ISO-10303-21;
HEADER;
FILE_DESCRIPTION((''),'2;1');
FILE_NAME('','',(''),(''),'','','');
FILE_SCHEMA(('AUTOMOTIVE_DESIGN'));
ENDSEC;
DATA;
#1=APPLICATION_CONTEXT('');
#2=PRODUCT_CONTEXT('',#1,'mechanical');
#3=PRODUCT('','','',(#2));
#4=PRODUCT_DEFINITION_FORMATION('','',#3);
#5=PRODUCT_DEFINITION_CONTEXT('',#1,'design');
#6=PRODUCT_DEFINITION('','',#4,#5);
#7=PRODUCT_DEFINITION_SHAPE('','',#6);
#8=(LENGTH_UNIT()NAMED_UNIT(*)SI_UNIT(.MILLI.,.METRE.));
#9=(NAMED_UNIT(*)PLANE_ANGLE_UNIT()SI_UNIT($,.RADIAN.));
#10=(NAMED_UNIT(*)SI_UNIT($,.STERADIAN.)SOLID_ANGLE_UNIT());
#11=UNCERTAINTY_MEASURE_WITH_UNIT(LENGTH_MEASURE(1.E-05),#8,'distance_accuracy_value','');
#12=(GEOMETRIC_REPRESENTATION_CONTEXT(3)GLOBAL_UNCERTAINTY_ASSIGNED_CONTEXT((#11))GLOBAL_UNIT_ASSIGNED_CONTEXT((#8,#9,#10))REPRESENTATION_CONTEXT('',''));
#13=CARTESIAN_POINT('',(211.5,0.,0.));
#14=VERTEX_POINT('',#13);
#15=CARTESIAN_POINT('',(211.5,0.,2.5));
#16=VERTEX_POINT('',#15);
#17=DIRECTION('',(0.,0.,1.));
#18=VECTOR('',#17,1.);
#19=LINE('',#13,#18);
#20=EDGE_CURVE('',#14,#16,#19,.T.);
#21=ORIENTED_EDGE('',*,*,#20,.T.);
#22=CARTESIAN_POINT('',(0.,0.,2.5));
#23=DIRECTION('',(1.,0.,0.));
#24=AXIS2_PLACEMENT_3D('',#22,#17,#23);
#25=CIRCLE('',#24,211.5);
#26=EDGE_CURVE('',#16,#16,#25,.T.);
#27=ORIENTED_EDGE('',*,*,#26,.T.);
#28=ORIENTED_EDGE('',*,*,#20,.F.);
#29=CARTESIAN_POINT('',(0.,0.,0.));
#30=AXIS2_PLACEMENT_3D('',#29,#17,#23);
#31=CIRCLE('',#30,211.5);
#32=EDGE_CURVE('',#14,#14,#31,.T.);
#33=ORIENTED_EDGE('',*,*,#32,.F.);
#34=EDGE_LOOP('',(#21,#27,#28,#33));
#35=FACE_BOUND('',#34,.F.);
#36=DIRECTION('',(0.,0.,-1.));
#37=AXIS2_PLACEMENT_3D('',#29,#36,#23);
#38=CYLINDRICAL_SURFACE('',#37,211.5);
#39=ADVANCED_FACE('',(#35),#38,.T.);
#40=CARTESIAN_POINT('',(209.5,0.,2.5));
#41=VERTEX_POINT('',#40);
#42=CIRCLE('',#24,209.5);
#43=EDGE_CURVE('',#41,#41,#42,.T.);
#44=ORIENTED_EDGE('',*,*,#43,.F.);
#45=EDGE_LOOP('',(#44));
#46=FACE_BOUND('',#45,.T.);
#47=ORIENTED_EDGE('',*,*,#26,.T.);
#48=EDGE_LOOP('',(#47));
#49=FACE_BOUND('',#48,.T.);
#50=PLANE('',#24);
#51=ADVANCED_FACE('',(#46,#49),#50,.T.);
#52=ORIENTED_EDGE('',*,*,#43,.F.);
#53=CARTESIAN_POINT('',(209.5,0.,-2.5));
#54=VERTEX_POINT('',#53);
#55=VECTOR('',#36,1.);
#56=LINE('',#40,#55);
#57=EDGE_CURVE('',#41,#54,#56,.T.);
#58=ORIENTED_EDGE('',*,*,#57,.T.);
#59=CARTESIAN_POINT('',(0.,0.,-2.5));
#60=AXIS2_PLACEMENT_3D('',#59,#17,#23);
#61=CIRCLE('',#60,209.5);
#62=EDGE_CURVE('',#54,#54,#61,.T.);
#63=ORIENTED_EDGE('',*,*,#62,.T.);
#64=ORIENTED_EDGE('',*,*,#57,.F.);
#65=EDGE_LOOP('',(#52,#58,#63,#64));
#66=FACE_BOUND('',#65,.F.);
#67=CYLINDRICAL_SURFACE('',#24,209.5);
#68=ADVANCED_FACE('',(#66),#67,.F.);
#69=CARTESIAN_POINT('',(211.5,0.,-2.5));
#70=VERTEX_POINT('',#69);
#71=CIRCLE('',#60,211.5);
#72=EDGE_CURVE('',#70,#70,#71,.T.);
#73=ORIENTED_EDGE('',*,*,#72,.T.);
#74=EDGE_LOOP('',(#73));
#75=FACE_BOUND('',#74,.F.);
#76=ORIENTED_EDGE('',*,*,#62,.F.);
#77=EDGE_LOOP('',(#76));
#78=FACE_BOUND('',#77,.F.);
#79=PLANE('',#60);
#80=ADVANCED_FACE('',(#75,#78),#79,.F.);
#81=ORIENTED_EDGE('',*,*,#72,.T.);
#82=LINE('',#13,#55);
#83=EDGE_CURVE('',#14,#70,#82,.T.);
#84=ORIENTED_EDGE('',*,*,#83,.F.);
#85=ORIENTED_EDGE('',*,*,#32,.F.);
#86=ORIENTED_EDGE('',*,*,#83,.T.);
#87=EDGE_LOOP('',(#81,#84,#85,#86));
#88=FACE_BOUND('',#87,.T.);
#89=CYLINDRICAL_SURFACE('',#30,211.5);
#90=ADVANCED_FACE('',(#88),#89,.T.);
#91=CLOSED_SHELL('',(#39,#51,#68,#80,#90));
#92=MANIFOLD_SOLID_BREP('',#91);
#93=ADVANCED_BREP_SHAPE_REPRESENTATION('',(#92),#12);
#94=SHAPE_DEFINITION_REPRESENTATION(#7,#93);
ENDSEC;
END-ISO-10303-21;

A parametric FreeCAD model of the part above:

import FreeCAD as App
import Part
import Sketcher

doc = App.newDocument("Part")
body = doc.addObject("PartDesign::Body", "Body")

# Sketch on XY plane
sketch1 = doc.addObject("Sketcher::SketchObject", "Sketch")
body.addObject(sketch1)
sketch1.AttachmentSupport = (doc.XY_Plane, [""])
sketch1.MapMode = "FlatFace"
sketch1.addGeometry(Part.Circle(App.Vector(0, 0, 0), App.Vector(0, 0, 1), 211.5), False)
sketch1.addConstraint([
    Sketcher.Constraint("Coincident", 0, 3, -1, 1),
    Sketcher.Constraint("Diameter", 0, 423.0),
])
pad1 = doc.addObject("PartDesign::Pad", "Pad")
body.addObject(pad1)
pad1.Profile = sketch1
pad1.Length = 5
pad1.Midplane = True

# Sketch on XY plane
sketch2 = doc.addObject("Sketcher::SketchObject", "Sketch001")
body.addObject(sketch2)
sketch2.AttachmentSupport = (doc.XY_Plane, [""])
sketch2.MapMode = "FlatFace"
sketch2.AttachmentOffset = App.Placement(App.Vector(0, 0, 2.5), App.Rotation())
sketch2.addGeometry(Part.Circle(App.Vector(0, 0, 0), App.Vector(0, 0, 1), 209.5), False)
sketch2.addConstraint([
    Sketcher.Constraint("Coincident", 0, 3, -1, 1),
    Sketcher.Constraint("Diameter", 0, 419.0),
])
pocket1 = doc.addObject("PartDesign::Pocket", "Pocket")
body.addObject(pocket1)
pocket1.Profile = sketch2
pocket1.Type = "ThroughAll"

doc.recompute()
